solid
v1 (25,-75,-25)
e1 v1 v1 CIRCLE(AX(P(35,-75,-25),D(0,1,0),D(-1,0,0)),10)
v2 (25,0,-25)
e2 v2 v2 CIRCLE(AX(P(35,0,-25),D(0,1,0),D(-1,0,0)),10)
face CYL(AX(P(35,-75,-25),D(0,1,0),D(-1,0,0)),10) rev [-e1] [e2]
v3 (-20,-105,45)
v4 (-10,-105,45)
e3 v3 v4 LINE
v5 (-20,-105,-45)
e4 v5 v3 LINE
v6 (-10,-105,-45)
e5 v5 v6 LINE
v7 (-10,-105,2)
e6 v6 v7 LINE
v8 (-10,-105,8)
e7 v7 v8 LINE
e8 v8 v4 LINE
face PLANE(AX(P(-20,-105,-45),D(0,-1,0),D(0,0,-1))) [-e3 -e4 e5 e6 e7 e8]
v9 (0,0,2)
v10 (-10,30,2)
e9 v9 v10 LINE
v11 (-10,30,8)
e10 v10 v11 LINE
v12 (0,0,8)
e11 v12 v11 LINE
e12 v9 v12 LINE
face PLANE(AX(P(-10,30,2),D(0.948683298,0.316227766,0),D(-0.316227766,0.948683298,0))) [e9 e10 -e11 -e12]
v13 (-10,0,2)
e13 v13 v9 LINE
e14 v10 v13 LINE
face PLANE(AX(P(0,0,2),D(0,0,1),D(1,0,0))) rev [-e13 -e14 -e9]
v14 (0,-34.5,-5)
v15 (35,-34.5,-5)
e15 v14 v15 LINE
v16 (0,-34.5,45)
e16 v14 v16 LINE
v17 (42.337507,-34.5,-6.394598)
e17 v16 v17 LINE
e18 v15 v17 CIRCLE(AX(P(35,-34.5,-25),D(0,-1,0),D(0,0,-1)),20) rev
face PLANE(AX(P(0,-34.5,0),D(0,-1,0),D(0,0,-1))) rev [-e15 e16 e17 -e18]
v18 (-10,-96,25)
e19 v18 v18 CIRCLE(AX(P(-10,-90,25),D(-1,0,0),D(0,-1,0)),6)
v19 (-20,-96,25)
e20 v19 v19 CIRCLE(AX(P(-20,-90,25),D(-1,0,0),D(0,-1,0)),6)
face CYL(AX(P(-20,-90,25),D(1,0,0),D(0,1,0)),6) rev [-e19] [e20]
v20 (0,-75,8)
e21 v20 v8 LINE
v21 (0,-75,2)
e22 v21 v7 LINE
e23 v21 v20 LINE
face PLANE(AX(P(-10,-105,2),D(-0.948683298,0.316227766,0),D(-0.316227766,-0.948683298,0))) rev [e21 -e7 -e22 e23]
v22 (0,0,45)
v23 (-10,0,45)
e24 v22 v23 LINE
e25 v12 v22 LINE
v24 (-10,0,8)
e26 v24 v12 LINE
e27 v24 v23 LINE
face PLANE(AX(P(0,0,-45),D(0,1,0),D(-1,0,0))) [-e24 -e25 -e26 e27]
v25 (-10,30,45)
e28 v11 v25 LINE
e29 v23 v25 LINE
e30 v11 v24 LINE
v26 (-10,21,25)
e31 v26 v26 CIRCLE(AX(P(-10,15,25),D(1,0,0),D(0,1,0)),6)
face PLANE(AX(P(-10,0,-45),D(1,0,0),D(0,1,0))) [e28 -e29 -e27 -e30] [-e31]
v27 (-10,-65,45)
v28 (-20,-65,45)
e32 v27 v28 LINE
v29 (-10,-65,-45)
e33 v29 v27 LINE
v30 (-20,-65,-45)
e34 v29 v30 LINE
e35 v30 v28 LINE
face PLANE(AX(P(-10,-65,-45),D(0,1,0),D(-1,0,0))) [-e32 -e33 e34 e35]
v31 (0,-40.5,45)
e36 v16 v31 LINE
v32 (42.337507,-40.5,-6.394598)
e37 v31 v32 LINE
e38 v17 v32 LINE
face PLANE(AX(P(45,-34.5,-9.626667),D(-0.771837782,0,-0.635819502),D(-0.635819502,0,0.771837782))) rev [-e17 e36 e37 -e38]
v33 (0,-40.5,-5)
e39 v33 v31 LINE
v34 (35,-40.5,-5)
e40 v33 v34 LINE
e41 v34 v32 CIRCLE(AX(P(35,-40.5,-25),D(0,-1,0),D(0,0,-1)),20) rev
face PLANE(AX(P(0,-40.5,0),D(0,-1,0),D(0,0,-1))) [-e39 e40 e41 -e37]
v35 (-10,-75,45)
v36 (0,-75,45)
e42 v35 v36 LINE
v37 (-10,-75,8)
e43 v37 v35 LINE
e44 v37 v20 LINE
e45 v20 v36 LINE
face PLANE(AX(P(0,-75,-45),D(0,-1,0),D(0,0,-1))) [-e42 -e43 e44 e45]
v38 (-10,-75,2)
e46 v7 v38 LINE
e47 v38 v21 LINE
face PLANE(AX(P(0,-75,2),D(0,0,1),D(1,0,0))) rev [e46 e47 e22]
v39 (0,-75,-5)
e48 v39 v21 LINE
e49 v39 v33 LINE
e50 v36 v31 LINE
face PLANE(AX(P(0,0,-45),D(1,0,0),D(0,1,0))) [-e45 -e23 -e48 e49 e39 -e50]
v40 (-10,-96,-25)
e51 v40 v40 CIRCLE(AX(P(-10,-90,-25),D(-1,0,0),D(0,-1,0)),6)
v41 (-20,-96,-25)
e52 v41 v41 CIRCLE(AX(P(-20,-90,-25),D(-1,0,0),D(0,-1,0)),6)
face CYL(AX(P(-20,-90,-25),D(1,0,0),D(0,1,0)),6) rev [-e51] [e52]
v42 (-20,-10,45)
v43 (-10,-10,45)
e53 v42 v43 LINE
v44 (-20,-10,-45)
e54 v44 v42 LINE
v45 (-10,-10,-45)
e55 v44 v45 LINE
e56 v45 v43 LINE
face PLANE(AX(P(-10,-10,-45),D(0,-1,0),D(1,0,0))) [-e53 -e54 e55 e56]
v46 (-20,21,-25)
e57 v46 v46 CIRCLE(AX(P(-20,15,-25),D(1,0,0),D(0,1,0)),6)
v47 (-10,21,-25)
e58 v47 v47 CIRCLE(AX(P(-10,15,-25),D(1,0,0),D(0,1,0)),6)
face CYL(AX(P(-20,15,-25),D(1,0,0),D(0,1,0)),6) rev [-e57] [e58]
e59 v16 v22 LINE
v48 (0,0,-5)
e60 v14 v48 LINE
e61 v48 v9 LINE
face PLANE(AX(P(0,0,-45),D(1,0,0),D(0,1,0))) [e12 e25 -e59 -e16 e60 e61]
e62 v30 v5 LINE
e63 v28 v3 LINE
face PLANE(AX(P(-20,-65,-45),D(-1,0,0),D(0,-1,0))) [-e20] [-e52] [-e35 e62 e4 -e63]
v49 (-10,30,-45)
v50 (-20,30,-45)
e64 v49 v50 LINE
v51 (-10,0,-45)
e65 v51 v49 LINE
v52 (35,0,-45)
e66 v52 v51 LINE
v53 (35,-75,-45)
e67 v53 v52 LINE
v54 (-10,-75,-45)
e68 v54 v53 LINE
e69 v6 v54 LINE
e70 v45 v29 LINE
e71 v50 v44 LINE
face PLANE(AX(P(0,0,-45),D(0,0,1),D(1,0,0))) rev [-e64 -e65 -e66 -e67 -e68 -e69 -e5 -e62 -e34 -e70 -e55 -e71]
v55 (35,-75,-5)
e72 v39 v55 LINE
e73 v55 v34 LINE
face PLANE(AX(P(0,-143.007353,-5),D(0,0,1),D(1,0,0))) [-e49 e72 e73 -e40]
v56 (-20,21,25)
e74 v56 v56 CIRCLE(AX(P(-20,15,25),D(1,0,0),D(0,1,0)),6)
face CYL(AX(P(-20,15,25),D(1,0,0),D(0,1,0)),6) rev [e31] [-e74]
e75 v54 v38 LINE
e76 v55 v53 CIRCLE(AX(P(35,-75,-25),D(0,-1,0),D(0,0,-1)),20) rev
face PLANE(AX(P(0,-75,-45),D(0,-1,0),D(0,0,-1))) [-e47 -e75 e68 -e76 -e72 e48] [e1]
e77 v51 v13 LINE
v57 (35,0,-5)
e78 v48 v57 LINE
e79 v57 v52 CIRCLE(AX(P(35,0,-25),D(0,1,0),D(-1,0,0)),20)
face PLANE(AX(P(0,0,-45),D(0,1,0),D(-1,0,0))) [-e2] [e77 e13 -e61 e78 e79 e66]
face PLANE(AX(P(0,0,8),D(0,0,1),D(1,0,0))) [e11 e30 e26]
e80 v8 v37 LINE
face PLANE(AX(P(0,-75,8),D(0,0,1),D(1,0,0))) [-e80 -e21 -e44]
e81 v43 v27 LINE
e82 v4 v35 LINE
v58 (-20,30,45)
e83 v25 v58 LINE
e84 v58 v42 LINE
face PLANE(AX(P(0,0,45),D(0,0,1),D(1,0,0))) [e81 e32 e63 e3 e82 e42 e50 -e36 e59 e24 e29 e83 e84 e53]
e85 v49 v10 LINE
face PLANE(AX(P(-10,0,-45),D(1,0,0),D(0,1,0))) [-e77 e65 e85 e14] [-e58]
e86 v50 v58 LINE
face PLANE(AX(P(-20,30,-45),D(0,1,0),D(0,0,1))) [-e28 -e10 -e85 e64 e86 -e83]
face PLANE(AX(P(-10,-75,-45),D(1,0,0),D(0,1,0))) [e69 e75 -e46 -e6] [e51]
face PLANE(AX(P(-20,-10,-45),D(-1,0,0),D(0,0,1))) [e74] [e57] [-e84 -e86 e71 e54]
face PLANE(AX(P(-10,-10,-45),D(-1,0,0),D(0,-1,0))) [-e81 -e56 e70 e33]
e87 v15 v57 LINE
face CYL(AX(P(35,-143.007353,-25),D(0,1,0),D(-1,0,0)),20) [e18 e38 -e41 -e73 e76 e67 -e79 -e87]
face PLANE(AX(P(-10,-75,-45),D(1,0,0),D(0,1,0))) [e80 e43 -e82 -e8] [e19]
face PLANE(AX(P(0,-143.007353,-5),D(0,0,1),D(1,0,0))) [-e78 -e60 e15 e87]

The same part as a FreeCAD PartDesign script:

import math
import FreeCAD as App
import Part
import Sketcher

V = App.Vector


def add_polygon(sketch, points):
    """Adds a closed chain of lines whose ends are joined by coincident constraints."""
    first, n = sketch.GeometryCount, len(points)
    for a, b in zip(points, points[1:] + points[:1]):
        sketch.addGeometry(Part.LineSegment(App.Vector(*a, 0), App.Vector(*b, 0)), False)
    for i in range(n):
        sketch.addConstraint(Sketcher.Constraint("Coincident", first + i, 2, first + (i + 1) % n, 1))

doc = App.newDocument("Part")
body = doc.addObject("PartDesign::Body", "Body")

# Sketch on XY plane
sketch1 = doc.addObject("Sketcher::SketchObject", "Sketch")
body.addObject(sketch1)
sketch1.AttachmentSupport = (doc.XY_Plane, [""])
sketch1.MapMode = "FlatFace"
add_polygon(sketch1, [(0, -75), (0, 0), (-10, 0), (-10, 30), (-20, 30), (-20, -10), (-10, -10), (-10, -65), (-20, -65), (-20, -105), (-10, -105), (-10, -75)])  # lines 0-11
sketch1.addConstraint([
    Sketcher.Constraint("Vertical", 0),
    Sketcher.Constraint("Horizontal", 1),
    Sketcher.Constraint("Vertical", 2),
    Sketcher.Constraint("Horizontal", 3),
    Sketcher.Constraint("Vertical", 4),
    Sketcher.Constraint("Horizontal", 5),
    Sketcher.Constraint("Vertical", 6),
    Sketcher.Constraint("Horizontal", 7),
    Sketcher.Constraint("Vertical", 8),
    Sketcher.Constraint("Horizontal", 9),
    Sketcher.Constraint("Vertical", 10),
    Sketcher.Constraint("Horizontal", 11),
    Sketcher.Constraint("Coincident", 0, 2, -1, 1),
    Sketcher.Constraint("Vertical", 2, 2, 5, 2),
    Sketcher.Constraint("Vertical", 4, 2, 7, 2),
    Sketcher.Constraint("Vertical", 6, 2, 9, 2),
    Sketcher.Constraint("Equal", 1, 3),
    Sketcher.Constraint("Equal", 4, 8),
    Sketcher.Constraint("Equal", 2, 10),
    Sketcher.Constraint("DistanceX", 1, 2, 1, 1, 10.0),
    Sketcher.Constraint("DistanceY", 0, 1, 0, 2, 75.0),
    Sketcher.Constraint("DistanceY", 2, 1, 2, 2, 30.0),
    Sketcher.Constraint("DistanceY", 4, 2, 4, 1, 40.0),
])
pad1 = doc.addObject("PartDesign::Pad", "Pad")
body.addObject(pad1)
pad1.Profile = sketch1
pad1.Length = 90
pad1.Midplane = True

# Sketch on XZ plane
sketch2 = doc.addObject("Sketcher::SketchObject", "Sketch001")
body.addObject(sketch2)
sketch2.AttachmentSupport = (doc.XZ_Plane, [""])
sketch2.MapMode = "FlatFace"
sketch2.addGeometry([
    Part.LineSegment(V(35, -45, 0), V(0, -45, 0)),
    Part.LineSegment(V(0, -45, 0), V(0, -5, 0)),
    Part.LineSegment(V(0, -5, 0), V(35, -5, 0)),
    Part.ArcOfCircle(Part.Circle(V(35, -25, 0), V(0, 0, 1), 20), math.radians(-90), math.radians(90)),
], False)
sketch2.addConstraint([
    Sketcher.Constraint("Coincident", 0, 2, 1, 1),
    Sketcher.Constraint("Coincident", 1, 2, 2, 1),
    Sketcher.Constraint("Tangent", 2, 2, 3, 2),
    Sketcher.Constraint("Tangent", 3, 1, 0, 1),
    Sketcher.Constraint("Horizontal", 0),
    Sketcher.Constraint("Vertical", 1),
    Sketcher.Constraint("Horizontal", 2),
    Sketcher.Constraint("PointOnObject", 0, 2, -2),
    Sketcher.Constraint("Radius", 3, 20.0),
    Sketcher.Constraint("DistanceX", 0, 2, 0, 1, 35.0),
    Sketcher.Constraint("DistanceY", 3, 3, -1, 1, 25.0),
])
pad2 = doc.addObject("PartDesign::Pad", "Pad001")
body.addObject(pad2)
pad2.Profile = sketch2
pad2.Length = 75

# Sketch on XZ plane
sketch3 = doc.addObject("Sketcher::SketchObject", "Sketch002")
body.addObject(sketch3)
sketch3.AttachmentSupport = (doc.XZ_Plane, [""])
sketch3.MapMode = "FlatFace"
sketch3.addGeometry(Part.Circle(V(35, -25, 0), V(0, 0, 1), 10), False)
sketch3.addConstraint([
    Sketcher.Constraint("Diameter", 0, 20.0),
    Sketcher.Constraint("DistanceX", -1, 1, 0, 3, 35.0),
    Sketcher.Constraint("DistanceY", 0, 3, -1, 1, 25.0),
])
pocket1 = doc.addObject("PartDesign::Pocket", "Pocket")
body.addObject(pocket1)
pocket1.Profile = sketch3
pocket1.Length = 75
pocket1.Reversed = True

# Sketch on YZ plane
sketch4 = doc.addObject("Sketcher::SketchObject", "Sketch003")
body.addObject(sketch4)
sketch4.AttachmentSupport = (doc.YZ_Plane, [""])
sketch4.MapMode = "FlatFace"
sketch4.AttachmentOffset = App.Placement(V(0, 0, -10), App.Rotation())
sketch4.addGeometry([
    Part.Circle(V(15, 25, 0), V(0, 0, 1), 6),
    Part.Circle(V(15, -25, 0), V(0, 0, 1), 6),
], False)
sketch4.addConstraint([
    Sketcher.Constraint("Equal", 0, 1),
    Sketcher.Constraint("Symmetric", 0, 3, 1, 3, -1),
    Sketcher.Constraint("Diameter", 0, 12.0),
    Sketcher.Constraint("DistanceX", -1, 1, 0, 3, 15.0),
    Sketcher.Constraint("DistanceY", -1, 1, 0, 3, 25.0),
])
pocket2 = doc.addObject("PartDesign::Pocket", "Pocket001")
body.addObject(pocket2)
pocket2.Profile = sketch4
pocket2.Type = "ThroughAll"
doc.recompute()

datumplane = doc.addObject("PartDesign::Plane", "DatumPlane")
body.addObject(datumplane)
datumplane.AttachmentSupport = (doc.XZ_Plane, [""])
datumplane.MapMode = "FlatFace"
datumplane.AttachmentOffset = App.Placement(V(0, 0, 37.5), App.Rotation())
mirrored = doc.addObject("PartDesign::Mirrored", "Mirrored")
body.addObject(mirrored)
mirrored.Originals = [pocket2]
mirrored.MirrorPlane = (datumplane, [""])
body.Tip = mirrored

# Sketch on XY plane
sketch5 = doc.addObject("Sketcher::SketchObject", "Sketch004")
body.addObject(sketch5)
sketch5.AttachmentSupport = (doc.XY_Plane, [""])
sketch5.MapMode = "FlatFace"
sketch5.AttachmentOffset = App.Placement(V(0, 0, 8), App.Rotation())
add_polygon(sketch5, [(0, 0), (-10, 30), (-10, 0)])  # lines 0-2
sketch5.addConstraint([
    Sketcher.Constraint("Vertical", 1),
    Sketcher.Constraint("Horizontal", 2),
    Sketcher.Constraint("Coincident", 2, 2, -1, 1),
    Sketcher.Constraint("DistanceX", 2, 1, 2, 2, 10.0),
    Sketcher.Constraint("DistanceY", 1, 2, 1, 1, 30.0),
])
pad3 = doc.addObject("PartDesign::Pad", "Pad002")
body.addObject(pad3)
pad3.Profile = sketch5
pad3.Length = 6
pad3.Reversed = True
doc.recompute()

datumplane2 = doc.addObject("PartDesign::Plane", "DatumPlane001")
body.addObject(datumplane2)
datumplane2.AttachmentSupport = (doc.XZ_Plane, [""])
datumplane2.MapMode = "FlatFace"
datumplane2.AttachmentOffset = App.Placement(V(0, 0, 37.5), App.Rotation())
mirrored2 = doc.addObject("PartDesign::Mirrored", "Mirrored001")
body.addObject(mirrored2)
mirrored2.Originals = [pad3]
mirrored2.MirrorPlane = (datumplane2, [""])
body.Tip = mirrored2

# Sketch on XZ plane
sketch6 = doc.addObject("Sketcher::SketchObject", "Sketch005")
body.addObject(sketch6)
sketch6.AttachmentSupport = (doc.XZ_Plane, [""])
sketch6.MapMode = "FlatFace"
sketch6.AttachmentOffset = App.Placement(V(0, 0, 37.5), App.Rotation())
add_polygon(sketch6, [(45, -10), (0, -10), (0, 45)])  # lines 0-2
sketch6.addConstraint([
    Sketcher.Constraint("Horizontal", 0),
    Sketcher.Constraint("Vertical", 1),
    Sketcher.Constraint("PointOnObject", 0, 2, -2),
    Sketcher.Constraint("DistanceX", 0, 2, 0, 1, 45.0),
    Sketcher.Constraint("DistanceY", -1, 1, 1, 2, 45.0),
    Sketcher.Constraint("DistanceY", 1, 1, 1, 2, 54.626667),
])
pad4 = doc.addObject("PartDesign::Pad", "Pad003")
body.addObject(pad4)
pad4.Profile = sketch6
pad4.Length = 6
pad4.Midplane = True

doc.recompute()
